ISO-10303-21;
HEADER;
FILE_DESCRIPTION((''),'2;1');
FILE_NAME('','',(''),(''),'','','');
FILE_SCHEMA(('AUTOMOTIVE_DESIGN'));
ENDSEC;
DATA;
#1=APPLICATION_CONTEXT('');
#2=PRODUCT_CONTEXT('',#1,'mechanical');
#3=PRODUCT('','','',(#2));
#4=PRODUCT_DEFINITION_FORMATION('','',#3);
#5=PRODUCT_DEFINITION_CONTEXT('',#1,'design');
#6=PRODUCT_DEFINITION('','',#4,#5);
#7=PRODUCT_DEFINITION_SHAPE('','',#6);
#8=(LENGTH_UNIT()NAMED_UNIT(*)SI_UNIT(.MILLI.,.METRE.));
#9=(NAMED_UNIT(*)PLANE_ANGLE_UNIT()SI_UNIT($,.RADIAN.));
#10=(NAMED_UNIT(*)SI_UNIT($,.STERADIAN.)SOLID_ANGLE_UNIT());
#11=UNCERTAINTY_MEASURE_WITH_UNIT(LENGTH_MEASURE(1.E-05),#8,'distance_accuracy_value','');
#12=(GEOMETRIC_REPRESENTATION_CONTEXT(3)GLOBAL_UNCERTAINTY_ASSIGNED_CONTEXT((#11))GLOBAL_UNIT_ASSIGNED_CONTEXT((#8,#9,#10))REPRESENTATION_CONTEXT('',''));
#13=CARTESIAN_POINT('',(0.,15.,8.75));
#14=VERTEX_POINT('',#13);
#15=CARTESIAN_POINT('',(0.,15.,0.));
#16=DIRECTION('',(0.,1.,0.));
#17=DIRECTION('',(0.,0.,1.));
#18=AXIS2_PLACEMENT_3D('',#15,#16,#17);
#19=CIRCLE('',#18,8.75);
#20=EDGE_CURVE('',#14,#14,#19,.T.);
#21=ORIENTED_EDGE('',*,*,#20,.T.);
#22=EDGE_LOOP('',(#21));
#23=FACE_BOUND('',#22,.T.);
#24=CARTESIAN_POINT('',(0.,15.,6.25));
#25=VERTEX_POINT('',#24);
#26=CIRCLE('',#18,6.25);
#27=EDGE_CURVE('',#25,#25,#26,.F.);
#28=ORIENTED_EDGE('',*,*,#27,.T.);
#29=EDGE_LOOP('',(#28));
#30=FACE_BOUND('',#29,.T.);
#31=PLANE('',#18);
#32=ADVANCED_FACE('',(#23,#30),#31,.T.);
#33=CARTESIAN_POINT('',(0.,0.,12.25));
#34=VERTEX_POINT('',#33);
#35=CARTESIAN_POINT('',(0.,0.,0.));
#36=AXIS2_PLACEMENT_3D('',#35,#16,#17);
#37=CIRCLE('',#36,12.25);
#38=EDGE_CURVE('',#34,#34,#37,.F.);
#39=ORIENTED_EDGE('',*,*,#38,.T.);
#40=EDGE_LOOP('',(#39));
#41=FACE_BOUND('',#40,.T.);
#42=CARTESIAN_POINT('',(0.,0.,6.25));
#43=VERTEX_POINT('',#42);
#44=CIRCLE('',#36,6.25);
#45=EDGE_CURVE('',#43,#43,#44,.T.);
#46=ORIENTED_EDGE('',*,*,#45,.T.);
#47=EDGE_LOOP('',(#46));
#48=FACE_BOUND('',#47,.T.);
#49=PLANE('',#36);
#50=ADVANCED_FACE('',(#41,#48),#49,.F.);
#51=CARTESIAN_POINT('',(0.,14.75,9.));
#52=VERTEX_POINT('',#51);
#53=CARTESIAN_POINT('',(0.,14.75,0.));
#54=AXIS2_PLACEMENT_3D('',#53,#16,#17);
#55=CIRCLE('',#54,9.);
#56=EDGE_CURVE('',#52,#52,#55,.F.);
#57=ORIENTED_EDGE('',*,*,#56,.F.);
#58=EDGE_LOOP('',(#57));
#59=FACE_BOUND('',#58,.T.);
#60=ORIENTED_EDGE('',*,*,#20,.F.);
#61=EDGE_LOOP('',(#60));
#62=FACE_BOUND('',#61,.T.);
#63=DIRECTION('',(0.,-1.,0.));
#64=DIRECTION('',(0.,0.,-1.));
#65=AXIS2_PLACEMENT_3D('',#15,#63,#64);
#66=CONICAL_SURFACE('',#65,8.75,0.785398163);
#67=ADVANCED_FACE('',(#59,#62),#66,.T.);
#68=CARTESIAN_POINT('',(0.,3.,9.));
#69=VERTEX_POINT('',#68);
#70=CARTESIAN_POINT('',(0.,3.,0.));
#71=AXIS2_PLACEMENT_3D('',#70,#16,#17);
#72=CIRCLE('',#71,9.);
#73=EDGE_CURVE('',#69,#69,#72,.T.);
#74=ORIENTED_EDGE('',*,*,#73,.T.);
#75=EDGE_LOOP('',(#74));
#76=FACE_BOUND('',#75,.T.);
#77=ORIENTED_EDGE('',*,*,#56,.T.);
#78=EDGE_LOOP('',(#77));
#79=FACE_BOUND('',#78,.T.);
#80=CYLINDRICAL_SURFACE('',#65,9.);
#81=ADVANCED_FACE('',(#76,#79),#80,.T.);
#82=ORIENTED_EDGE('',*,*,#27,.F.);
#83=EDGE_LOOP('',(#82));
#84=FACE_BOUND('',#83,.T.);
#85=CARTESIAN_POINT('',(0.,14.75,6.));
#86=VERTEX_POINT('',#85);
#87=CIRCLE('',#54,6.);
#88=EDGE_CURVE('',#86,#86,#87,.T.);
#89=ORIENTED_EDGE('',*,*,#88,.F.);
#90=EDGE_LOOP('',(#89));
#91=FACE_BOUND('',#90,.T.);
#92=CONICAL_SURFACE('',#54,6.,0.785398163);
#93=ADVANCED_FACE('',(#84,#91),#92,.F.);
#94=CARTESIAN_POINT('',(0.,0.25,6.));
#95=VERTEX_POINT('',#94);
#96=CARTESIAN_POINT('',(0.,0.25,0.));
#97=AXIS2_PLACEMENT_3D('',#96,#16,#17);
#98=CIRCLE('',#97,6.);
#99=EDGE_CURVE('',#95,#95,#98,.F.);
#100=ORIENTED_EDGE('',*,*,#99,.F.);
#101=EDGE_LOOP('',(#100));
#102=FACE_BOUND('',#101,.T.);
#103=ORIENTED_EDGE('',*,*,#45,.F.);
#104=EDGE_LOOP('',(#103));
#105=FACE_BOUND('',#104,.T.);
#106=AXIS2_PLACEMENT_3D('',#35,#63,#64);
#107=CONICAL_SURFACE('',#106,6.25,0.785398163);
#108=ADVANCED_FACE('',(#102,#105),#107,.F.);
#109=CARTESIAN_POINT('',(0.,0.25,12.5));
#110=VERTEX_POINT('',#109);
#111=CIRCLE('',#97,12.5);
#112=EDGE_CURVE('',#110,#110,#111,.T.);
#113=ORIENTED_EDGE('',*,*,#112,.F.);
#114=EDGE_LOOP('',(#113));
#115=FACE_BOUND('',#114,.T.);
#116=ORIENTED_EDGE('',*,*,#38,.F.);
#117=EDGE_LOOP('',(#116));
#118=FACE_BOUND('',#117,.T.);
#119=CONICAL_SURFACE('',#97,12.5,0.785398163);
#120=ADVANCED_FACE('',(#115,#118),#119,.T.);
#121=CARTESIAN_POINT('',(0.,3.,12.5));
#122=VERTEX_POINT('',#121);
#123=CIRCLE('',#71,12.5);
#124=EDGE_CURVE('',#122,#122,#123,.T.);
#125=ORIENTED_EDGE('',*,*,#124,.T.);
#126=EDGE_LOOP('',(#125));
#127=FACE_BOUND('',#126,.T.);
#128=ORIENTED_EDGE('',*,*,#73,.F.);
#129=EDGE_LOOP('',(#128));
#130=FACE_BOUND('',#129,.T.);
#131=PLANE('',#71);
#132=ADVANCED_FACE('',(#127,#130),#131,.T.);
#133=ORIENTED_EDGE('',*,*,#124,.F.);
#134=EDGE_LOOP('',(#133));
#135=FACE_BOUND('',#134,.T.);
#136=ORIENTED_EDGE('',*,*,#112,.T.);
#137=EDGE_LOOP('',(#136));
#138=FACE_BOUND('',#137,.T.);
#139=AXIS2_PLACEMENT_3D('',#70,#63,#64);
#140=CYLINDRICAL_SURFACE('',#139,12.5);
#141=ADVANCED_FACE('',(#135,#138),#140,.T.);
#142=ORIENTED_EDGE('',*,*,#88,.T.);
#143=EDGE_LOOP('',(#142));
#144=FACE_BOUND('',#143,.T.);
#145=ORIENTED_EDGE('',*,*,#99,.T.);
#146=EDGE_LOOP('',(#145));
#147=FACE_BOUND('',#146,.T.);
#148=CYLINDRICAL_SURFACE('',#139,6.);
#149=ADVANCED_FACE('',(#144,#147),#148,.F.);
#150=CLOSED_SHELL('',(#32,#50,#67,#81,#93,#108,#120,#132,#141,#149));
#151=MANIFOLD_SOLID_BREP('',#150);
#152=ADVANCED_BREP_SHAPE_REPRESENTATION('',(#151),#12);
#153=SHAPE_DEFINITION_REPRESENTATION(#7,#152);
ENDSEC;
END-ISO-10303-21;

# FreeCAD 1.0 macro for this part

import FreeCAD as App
import Part
import Sketcher


def edges_at(feature, points):
    """Names of the edges that pass closest to the given points."""
    edges = feature.Shape.Edges
    near = lambda p: min(range(len(edges)), key=lambda i: edges[i].distToShape(Part.Vertex(*p))[0])
    return sorted({f"Edge{near(p) + 1}" for p in points})

doc = App.newDocument("Part")
body = doc.addObject("PartDesign::Body", "Body")

# Sketch on XZ plane
sketch1 = body.newObject("Sketcher::SketchObject", "Sketch")
sketch1.AttachmentSupport = (doc.getObject("XZ_Plane"), [""])
sketch1.MapMode = "FlatFace"
sketch1.addGeometry(Part.Circle(App.Vector(0, 0, 0), App.Vector(0, 0, 1), 12), False)
sketch1.addGeometry(Part.Circle(App.Vector(0, 0, 0), App.Vector(0, 0, 1), 6), False)
sketch1.addConstraint(Sketcher.Constraint("Coincident", 0, 3, -1, 1))
sketch1.addConstraint(Sketcher.Constraint("Coincident", 1, 3, -1, 1))
sketch1.addConstraint(Sketcher.Constraint("Diameter", 0, 25.0))
sketch1.addConstraint(Sketcher.Constraint("Diameter", 1, 12.0))
pad1 = body.newObject("PartDesign::Pad", "Pad")
pad1.Profile = sketch1
pad1.Length = 3
pad1.Reversed = True

# Sketch on XZ plane
sketch2 = body.newObject("Sketcher::SketchObject", "Sketch001")
sketch2.AttachmentSupport = (doc.getObject("XZ_Plane"), [""])
sketch2.MapMode = "FlatFace"
sketch2.AttachmentOffset = App.Placement(App.Vector(0, 0, -3), App.Rotation())
sketch2.addGeometry(Part.Circle(App.Vector(0, 0, 0), App.Vector(0, 0, 1), 9), False)
sketch2.addGeometry(Part.Circle(App.Vector(0, 0, 0), App.Vector(0, 0, 1), 6), False)
sketch2.addConstraint(Sketcher.Constraint("Coincident", 0, 3, -1, 1))
sketch2.addConstraint(Sketcher.Constraint("Coincident", 1, 3, -1, 1))
sketch2.addConstraint(Sketcher.Constraint("Diameter", 0, 18.0))
sketch2.addConstraint(Sketcher.Constraint("Diameter", 1, 12.0))
pad2 = body.newObject("PartDesign::Pad", "Pad001")
pad2.Profile = sketch2
pad2.Length = 12
pad2.Reversed = True
doc.recompute()

chamfer = body.newObject("PartDesign::Chamfer", "Chamfer")
chamfer.Base = (pad2, edges_at(pad2, [
    (0, 15, -9),
    (0, 15, -6),
    (0, 0, -12.5),
    (0, 0, -6),
]))
chamfer.Size = 0.25

doc.recompute()
